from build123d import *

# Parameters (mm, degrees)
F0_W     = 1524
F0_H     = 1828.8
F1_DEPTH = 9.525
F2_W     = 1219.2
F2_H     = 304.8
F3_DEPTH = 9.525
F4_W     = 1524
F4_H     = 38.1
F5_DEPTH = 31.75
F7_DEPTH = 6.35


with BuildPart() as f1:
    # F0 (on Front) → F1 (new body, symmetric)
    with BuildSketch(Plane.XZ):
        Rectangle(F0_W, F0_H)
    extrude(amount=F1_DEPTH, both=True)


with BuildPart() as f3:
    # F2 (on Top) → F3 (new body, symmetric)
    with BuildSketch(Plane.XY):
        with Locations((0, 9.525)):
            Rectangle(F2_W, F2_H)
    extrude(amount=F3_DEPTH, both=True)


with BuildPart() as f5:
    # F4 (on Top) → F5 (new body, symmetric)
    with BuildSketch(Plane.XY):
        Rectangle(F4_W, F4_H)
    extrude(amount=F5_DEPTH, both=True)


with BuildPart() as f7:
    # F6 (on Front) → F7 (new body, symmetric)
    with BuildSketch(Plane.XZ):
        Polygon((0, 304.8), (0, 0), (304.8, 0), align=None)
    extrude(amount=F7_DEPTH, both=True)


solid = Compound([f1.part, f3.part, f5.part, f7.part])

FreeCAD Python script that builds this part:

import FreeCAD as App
import Part
import Sketcher
from FreeCAD import Vector
Q = App.Units.Quantity

doc = App.newDocument("Part")
body = doc.addObject("PartDesign::Body", "Body")

# Sketch on XZ plane
sketch1 = body.newObject("Sketcher::SketchObject", "Sketch")
sketch1.AttachmentSupport = (doc.getObject("XZ_Plane"), [""])
sketch1.MapMode = "FlatFace"
sketch1.addGeometry([
    Part.LineSegment(Vector(-762, 914, 0), Vector(-762, -914, 0)),
    Part.LineSegment(Vector(-762, -914, 0), Vector(762, -914, 0)),
    Part.LineSegment(Vector(762, -914, 0), Vector(762, 914, 0)),
    Part.LineSegment(Vector(762, 914, 0), Vector(-762, 914, 0)),
], False)
sketch1.addConstraint([
    Sketcher.Constraint("Coincident", 0, 2, 1, 1),
    Sketcher.Constraint("Coincident", 1, 2, 2, 1),
    Sketcher.Constraint("Coincident", 2, 2, 3, 1),
    Sketcher.Constraint("Coincident", 3, 2, 0, 1),
    Sketcher.Constraint("Vertical", 0),
    Sketcher.Constraint("Horizontal", 1),
    Sketcher.Constraint("Vertical", 2),
    Sketcher.Constraint("Horizontal", 3),
    Sketcher.Constraint("Symmetric", 0, 2, 2, 2, -1, 1),
    Sketcher.Constraint("DistanceX", 1, 1, 1, 2, Q("60 in")),
    Sketcher.Constraint("DistanceY", 0, 2, 0, 1, Q("72 in")),
])
pad1 = body.newObject("PartDesign::Pad", "Pad")
pad1.Profile = sketch1
pad1.Length = Q("0.75 in")
pad1.Midplane = True
body2 = doc.addObject("PartDesign::Body", "Body001")

# Sketch on XY plane
sketch2 = body2.newObject("Sketcher::SketchObject", "Sketch001")
sketch2.AttachmentSupport = (doc.getObject("XY_Plane001"), [""])
sketch2.MapMode = "FlatFace"
sketch2.addGeometry([
    Part.LineSegment(Vector(-610, 162, 0), Vector(-610, -143, 0)),
    Part.LineSegment(Vector(-610, -143, 0), Vector(610, -143, 0)),
    Part.LineSegment(Vector(610, -143, 0), Vector(610, 162, 0)),
    Part.LineSegment(Vector(610, 162, 0), Vector(-610, 162, 0)),
], False)
sketch2.addConstraint([
    Sketcher.Constraint("Coincident", 0, 2, 1, 1),
    Sketcher.Constraint("Coincident", 1, 2, 2, 1),
    Sketcher.Constraint("Coincident", 2, 2, 3, 1),
    Sketcher.Constraint("Coincident", 3, 2, 0, 1),
    Sketcher.Constraint("Vertical", 0),
    Sketcher.Constraint("Horizontal", 1),
    Sketcher.Constraint("Vertical", 2),
    Sketcher.Constraint("Horizontal", 3),
    Sketcher.Constraint("DistanceX", 1, 1, 1, 2, Q("48 in")),
    Sketcher.Constraint("DistanceY", 0, 2, 0, 1, Q("12 in")),
    Sketcher.Constraint("DistanceX", 0, 2, -1, 1, Q("24 in")),
    Sketcher.Constraint("DistanceY", 0, 2, -1, 1, Q("5.625 in")),
])
pad2 = body2.newObject("PartDesign::Pad", "Pad001")
pad2.Profile = sketch2
pad2.Length = Q("0.75 in")
pad2.Midplane = True
body3 = doc.addObject("PartDesign::Body", "Body002")

# Sketch on XY plane
sketch3 = body3.newObject("Sketcher::SketchObject", "Sketch002")
sketch3.AttachmentSupport = (doc.getObject("XY_Plane002"), [""])
sketch3.MapMode = "FlatFace"
sketch3.addGeometry([
    Part.LineSegment(Vector(-762, 19, 0), Vector(-762, -19, 0)),
    Part.LineSegment(Vector(-762, -19, 0), Vector(762, -19, 0)),
    Part.LineSegment(Vector(762, -19, 0), Vector(762, 19, 0)),
    Part.LineSegment(Vector(762, 19, 0), Vector(-762, 19, 0)),
], False)
sketch3.addConstraint([
    Sketcher.Constraint("Coincident", 0, 2, 1, 1),
    Sketcher.Constraint("Coincident", 1, 2, 2, 1),
    Sketcher.Constraint("Coincident", 2, 2, 3, 1),
    Sketcher.Constraint("Coincident", 3, 2, 0, 1),
    Sketcher.Constraint("Vertical", 0),
    Sketcher.Constraint("Horizontal", 1),
    Sketcher.Constraint("Vertical", 2),
    Sketcher.Constraint("Horizontal", 3),
    Sketcher.Constraint("Symmetric", 0, 2, 2, 2, -1, 1),
    Sketcher.Constraint("DistanceX", 1, 1, 1, 2, Q("60 in")),
    Sketcher.Constraint("DistanceY", 0, 2, 0, 1, Q("1.5 in")),
])
pad3 = body3.newObject("PartDesign::Pad", "Pad002")
pad3.Profile = sketch3
pad3.Length = Q("2.5 in")
pad3.Midplane = True
body4 = doc.addObject("PartDesign::Body", "Body003")

# Sketch on XZ plane
sketch4 = body4.newObject("Sketcher::SketchObject", "Sketch003")
sketch4.AttachmentSupport = (doc.getObject("XZ_Plane003"), [""])
sketch4.MapMode = "FlatFace"
sketch4.addGeometry([
    Part.LineSegment(Vector(0, 305, 0), Vector(0, 0, 0)),
    Part.LineSegment(Vector(0, 0, 0), Vector(305, 0, 0)),
    Part.LineSegment(Vector(305, 0, 0), Vector(0, 305, 0)),
], False)
sketch4.addConstraint([
    Sketcher.Constraint("Coincident", 0, 2, 1, 1),
    Sketcher.Constraint("Coincident", 1, 2, 2, 1),
    Sketcher.Constraint("Coincident", 2, 2, 0, 1),
    Sketcher.Constraint("Vertical", 0),
    Sketcher.Constraint("Horizontal", 1),
    Sketcher.Constraint("Coincident", 0, 2, -1, 1),
    Sketcher.Constraint("Equal", 1, 0),
    Sketcher.Constraint("DistanceX", 1, 1, 1, 2, Q("12 in")),
])
pad4 = body4.newObject("PartDesign::Pad", "Pad003")
pad4.Profile = sketch4
pad4.Length = Q("0.5 in")
pad4.Midplane = True

doc.recompute()
